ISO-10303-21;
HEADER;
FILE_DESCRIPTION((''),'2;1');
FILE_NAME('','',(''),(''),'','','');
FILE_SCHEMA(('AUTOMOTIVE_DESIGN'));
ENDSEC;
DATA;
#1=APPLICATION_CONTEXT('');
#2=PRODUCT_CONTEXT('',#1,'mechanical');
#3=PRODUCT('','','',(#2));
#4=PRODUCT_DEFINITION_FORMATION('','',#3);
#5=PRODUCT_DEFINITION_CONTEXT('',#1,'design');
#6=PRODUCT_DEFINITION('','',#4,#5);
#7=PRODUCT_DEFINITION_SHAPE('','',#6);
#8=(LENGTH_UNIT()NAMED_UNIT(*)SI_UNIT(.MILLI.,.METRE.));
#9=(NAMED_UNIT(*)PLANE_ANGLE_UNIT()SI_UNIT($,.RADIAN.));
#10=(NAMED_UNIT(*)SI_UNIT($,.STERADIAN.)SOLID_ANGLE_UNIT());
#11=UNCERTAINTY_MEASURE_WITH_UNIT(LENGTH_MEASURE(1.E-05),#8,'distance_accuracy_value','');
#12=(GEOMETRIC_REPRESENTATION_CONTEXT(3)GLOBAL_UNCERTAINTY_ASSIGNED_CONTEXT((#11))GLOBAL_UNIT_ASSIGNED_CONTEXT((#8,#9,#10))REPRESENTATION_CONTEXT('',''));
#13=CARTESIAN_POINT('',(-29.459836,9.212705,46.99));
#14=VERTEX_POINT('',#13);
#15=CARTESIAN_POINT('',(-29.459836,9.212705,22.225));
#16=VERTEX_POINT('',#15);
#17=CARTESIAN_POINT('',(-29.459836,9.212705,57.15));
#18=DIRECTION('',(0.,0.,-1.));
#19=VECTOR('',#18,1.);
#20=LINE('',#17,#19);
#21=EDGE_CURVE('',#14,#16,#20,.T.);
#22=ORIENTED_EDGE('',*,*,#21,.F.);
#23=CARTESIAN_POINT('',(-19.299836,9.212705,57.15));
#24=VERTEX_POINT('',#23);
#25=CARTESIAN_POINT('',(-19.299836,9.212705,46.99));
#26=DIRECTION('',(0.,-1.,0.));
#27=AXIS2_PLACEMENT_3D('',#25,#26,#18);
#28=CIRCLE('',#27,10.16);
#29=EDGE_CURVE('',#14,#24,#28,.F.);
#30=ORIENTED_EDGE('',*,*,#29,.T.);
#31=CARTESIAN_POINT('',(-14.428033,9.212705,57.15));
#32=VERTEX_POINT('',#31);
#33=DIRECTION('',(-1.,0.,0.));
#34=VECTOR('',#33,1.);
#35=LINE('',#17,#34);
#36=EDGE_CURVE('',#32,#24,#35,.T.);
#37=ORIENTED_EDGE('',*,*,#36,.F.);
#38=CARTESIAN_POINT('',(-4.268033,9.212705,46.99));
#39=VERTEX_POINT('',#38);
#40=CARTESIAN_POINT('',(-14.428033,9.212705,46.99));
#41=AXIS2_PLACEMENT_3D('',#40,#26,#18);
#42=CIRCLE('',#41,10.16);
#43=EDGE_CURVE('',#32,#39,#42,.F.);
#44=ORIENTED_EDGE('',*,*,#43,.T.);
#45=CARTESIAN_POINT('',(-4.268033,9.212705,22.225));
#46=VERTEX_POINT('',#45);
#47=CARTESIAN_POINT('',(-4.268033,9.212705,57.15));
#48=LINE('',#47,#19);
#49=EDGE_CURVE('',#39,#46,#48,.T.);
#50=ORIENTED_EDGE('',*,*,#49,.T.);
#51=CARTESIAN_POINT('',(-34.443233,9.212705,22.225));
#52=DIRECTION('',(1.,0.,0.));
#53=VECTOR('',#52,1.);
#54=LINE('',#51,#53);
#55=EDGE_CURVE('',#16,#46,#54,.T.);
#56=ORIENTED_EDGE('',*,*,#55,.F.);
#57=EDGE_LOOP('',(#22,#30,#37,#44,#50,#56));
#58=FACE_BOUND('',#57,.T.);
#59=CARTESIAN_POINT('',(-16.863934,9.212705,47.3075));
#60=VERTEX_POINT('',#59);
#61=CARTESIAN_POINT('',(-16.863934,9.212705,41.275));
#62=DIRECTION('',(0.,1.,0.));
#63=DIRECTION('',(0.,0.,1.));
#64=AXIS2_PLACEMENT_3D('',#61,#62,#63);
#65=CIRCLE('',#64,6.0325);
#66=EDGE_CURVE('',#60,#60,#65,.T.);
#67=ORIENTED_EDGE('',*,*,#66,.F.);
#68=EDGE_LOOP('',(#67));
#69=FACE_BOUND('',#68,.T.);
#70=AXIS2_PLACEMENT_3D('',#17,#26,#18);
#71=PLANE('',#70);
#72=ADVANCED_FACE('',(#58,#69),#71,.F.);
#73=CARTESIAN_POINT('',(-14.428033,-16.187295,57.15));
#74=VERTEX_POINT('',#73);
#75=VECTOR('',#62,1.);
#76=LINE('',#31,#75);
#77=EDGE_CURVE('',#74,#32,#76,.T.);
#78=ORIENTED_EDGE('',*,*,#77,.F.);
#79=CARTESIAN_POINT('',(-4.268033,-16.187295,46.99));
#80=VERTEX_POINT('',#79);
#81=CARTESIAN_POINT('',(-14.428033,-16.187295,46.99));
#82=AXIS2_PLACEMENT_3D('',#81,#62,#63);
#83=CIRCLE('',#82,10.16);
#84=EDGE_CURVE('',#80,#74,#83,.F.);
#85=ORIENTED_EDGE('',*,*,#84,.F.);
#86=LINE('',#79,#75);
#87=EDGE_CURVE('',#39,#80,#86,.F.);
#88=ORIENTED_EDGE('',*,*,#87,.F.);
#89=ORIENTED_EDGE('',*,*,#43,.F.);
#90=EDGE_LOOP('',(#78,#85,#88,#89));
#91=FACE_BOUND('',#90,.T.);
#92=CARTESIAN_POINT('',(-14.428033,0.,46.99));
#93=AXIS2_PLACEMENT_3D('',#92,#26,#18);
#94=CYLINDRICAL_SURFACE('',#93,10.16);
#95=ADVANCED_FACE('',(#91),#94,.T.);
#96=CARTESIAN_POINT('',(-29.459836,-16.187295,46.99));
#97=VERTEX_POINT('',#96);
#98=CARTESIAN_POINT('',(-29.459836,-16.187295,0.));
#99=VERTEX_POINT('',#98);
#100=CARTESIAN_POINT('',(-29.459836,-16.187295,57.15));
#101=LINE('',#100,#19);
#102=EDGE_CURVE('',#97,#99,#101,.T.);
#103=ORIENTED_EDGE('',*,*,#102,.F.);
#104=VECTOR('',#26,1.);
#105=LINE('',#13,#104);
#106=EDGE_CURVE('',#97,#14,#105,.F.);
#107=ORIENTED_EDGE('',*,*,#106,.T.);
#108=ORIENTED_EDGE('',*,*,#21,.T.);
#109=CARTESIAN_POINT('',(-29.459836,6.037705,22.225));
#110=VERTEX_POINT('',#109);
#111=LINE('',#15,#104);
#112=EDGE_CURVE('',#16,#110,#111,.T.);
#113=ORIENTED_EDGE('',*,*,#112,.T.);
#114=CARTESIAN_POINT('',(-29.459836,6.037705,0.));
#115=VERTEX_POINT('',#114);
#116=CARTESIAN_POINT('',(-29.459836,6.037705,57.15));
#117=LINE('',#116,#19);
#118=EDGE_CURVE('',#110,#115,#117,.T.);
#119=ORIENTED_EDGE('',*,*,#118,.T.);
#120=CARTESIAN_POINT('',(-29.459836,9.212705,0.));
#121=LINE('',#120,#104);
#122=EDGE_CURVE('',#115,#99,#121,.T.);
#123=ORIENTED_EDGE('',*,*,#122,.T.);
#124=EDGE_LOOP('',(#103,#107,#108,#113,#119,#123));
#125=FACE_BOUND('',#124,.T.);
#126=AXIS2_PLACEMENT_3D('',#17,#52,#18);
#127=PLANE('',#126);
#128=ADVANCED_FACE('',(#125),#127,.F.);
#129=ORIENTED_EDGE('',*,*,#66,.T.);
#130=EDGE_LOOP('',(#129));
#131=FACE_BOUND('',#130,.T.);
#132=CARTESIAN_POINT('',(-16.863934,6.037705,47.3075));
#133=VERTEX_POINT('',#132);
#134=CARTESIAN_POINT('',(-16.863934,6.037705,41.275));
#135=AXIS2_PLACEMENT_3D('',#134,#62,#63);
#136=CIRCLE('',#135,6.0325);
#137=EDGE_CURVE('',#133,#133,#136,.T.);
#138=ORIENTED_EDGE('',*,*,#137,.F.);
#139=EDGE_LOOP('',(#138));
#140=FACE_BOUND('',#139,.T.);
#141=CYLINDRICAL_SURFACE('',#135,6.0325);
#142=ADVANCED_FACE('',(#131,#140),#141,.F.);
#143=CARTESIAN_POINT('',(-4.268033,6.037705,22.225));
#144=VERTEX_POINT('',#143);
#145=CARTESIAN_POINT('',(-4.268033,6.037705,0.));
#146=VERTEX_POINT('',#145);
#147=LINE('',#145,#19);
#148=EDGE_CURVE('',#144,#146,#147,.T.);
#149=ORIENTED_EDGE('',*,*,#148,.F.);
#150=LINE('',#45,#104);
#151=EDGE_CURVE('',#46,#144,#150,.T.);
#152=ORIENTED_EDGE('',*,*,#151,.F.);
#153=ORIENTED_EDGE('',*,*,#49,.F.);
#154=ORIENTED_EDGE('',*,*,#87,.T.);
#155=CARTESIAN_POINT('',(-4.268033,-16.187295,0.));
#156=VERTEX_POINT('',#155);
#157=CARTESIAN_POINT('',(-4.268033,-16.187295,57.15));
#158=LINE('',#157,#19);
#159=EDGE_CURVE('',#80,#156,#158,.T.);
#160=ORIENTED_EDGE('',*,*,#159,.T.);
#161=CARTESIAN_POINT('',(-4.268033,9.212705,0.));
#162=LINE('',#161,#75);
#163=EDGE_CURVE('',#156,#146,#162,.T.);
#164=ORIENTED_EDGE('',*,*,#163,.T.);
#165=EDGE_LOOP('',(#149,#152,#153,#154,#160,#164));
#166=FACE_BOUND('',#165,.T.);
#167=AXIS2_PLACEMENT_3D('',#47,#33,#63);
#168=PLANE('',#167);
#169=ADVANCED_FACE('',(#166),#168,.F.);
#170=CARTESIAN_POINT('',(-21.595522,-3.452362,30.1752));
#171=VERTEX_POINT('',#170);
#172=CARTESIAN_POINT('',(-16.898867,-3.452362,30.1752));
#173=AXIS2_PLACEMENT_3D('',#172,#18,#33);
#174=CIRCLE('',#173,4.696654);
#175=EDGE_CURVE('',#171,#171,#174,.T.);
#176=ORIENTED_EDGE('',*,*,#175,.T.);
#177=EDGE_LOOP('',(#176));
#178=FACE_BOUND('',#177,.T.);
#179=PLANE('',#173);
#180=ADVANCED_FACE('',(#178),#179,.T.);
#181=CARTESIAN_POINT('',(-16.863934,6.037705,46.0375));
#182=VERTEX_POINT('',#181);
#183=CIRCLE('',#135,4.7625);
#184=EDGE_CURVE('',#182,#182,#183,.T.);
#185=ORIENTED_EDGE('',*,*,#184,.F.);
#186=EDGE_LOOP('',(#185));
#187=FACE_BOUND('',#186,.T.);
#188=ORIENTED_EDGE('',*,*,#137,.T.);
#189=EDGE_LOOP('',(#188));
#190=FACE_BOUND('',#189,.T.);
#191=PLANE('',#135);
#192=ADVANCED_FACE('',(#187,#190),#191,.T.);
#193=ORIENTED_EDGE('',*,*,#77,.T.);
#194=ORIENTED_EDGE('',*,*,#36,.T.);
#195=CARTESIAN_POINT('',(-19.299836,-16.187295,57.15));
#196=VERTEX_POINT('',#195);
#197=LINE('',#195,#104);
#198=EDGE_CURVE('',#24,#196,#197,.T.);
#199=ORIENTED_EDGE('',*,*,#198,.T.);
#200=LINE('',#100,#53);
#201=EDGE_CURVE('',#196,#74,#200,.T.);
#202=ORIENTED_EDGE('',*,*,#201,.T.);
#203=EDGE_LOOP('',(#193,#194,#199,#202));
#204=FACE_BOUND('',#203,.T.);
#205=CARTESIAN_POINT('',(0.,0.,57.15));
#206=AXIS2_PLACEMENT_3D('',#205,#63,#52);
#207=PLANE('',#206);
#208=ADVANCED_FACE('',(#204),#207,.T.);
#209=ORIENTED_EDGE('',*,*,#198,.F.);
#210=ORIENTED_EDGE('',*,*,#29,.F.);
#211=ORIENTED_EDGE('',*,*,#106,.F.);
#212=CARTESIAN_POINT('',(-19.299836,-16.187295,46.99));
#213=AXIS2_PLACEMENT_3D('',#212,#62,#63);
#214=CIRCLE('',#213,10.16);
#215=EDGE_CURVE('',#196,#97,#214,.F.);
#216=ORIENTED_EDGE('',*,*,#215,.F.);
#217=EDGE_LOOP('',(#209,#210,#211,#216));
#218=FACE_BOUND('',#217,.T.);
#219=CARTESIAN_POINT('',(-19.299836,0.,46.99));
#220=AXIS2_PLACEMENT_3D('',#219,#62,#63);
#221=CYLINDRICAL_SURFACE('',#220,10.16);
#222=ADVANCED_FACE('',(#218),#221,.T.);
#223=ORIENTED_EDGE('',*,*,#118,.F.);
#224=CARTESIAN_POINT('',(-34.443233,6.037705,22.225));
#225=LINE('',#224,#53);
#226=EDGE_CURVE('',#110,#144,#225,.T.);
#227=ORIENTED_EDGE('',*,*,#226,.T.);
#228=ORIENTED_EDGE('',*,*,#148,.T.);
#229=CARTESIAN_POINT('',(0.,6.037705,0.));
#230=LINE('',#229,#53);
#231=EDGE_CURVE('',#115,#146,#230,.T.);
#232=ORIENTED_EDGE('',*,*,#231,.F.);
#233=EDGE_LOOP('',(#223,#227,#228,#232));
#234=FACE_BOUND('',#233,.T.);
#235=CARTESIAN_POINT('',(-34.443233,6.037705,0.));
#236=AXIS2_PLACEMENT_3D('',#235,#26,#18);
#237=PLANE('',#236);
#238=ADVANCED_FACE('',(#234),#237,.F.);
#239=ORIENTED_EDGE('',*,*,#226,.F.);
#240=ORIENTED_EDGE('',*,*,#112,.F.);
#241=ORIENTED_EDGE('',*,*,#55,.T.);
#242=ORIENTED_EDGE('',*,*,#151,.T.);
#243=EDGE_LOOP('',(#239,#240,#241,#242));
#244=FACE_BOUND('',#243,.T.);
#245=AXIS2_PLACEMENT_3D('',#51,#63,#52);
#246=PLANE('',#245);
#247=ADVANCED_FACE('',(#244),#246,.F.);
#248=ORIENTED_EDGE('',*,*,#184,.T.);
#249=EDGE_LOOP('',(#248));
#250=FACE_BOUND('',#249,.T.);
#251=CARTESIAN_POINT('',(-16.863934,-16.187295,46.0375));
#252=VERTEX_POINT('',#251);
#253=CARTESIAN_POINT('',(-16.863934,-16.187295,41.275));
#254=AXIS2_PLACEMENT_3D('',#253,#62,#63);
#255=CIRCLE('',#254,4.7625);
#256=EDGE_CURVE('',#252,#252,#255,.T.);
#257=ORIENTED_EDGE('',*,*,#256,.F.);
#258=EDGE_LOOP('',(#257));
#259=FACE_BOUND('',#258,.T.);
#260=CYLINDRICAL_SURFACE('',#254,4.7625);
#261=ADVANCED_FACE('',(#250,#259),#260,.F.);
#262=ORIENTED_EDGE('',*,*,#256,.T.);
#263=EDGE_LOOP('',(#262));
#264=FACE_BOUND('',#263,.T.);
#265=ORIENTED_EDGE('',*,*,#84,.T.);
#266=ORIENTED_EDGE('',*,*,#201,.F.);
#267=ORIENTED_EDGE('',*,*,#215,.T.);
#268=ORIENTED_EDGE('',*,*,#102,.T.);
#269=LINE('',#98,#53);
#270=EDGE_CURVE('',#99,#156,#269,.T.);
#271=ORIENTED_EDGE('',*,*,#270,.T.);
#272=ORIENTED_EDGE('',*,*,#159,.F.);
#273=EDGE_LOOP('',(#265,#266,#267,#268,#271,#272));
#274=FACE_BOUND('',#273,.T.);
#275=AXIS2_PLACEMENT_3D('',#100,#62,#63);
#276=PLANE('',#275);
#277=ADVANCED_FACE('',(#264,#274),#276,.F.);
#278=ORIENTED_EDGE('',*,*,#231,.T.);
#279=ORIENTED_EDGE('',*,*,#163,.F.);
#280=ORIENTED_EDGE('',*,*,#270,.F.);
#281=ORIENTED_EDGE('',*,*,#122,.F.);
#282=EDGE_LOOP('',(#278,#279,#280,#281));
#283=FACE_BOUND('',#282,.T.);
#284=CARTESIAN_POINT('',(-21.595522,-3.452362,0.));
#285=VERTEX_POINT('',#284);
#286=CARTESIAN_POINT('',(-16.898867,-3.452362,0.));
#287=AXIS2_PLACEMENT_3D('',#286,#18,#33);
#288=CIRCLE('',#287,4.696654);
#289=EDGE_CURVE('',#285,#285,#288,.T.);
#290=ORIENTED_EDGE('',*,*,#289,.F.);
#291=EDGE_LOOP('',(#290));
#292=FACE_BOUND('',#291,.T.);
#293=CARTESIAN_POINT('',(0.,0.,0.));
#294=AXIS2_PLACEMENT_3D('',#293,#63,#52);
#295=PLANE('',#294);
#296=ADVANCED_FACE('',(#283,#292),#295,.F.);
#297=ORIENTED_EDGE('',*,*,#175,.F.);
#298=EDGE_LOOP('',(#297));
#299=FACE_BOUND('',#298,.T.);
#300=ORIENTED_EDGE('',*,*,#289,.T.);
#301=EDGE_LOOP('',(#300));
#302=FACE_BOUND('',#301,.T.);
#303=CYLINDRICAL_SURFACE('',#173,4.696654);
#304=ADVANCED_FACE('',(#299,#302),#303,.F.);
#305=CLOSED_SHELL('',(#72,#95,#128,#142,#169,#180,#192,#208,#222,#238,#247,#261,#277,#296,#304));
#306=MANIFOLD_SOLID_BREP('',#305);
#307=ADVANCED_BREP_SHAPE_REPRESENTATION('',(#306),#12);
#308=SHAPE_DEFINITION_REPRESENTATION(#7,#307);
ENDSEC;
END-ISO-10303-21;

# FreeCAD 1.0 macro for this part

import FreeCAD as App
import Part
import Sketcher
Q = App.Units.Quantity


def edges_at(feature, points):
    """Names of the edges that pass closest to the given points."""
    edges = feature.Shape.Edges
    near = lambda p: min(range(len(edges)), key=lambda i: edges[i].distToShape(Part.Vertex(*p))[0])
    return sorted({f"Edge{near(p) + 1}" for p in points})

doc = App.newDocument("Part")
body = doc.addObject("PartDesign::Body", "Body")

sketch1 = doc.addObject("Sketcher::SketchObject", "Sketch")
body.addObject(sketch1)
sketch1.AttachmentSupport = (doc.XY_Plane, [""])
sketch1.MapMode = "FlatFace"
sketch1.addGeometry([
    Part.LineSegment(App.Vector(-29.459836, 9.212705, 0), App.Vector(-29.459836, -16.187295, 0)),
    Part.LineSegment(App.Vector(-29.459836, -16.187295, 0), App.Vector(-4.268033, -16.187295, 0)),
    Part.LineSegment(App.Vector(-4.268033, -16.187295, 0), App.Vector(-4.268033, 9.212705, 0)),
    Part.LineSegment(App.Vector(-4.268033, 9.212705, 0), App.Vector(-29.459836, 9.212705, 0)),
], False)
sketch1.addConstraint([
    Sketcher.Constraint("Coincident", 0, 2, 1, 1),
    Sketcher.Constraint("Coincident", 1, 2, 2, 1),
    Sketcher.Constraint("Coincident", 2, 2, 3, 1),
    Sketcher.Constraint("Coincident", 3, 2, 0, 1),
    Sketcher.Constraint("Vertical", 0),
    Sketcher.Constraint("Horizontal", 1),
    Sketcher.Constraint("Vertical", 2),
    Sketcher.Constraint("Horizontal", 3),
    Sketcher.Constraint("DistanceY", 0, 2, 0, 1, Q("1 in")),
    Sketcher.Constraint("DistanceX", 1, 1, 1, 2, Q("25.191803 mm")),
    Sketcher.Constraint("DistanceX", 0, 2, -1, 1, Q("29.459836 mm")),
    Sketcher.Constraint("DistanceY", 0, 2, -1, 1, Q("16.187295 mm")),
])
pad1 = doc.addObject("PartDesign::Pad", "Pad")
body.addObject(pad1)
pad1.Profile = sketch1
pad1.Length = Q("2.25 in")

sketch2 = doc.addObject("Sketcher::SketchObject", "Sketch001")
body.addObject(sketch2)
sketch2.AttachmentSupport = (doc.XY_Plane, [""])
sketch2.MapMode = "FlatFace"
sketch2.addGeometry(Part.Circle(App.Vector(-16.898867, -3.452362, 0), App.Vector(0, 0, 1), 4.696654), False)
sketch2.addConstraint([
    Sketcher.Constraint("Diameter", 0, Q("9.393309 mm")),
    Sketcher.Constraint("DistanceX", 0, 3, -1, 1, Q("16.898867 mm")),
    Sketcher.Constraint("DistanceY", 0, 3, -1, 1, Q("3.452362 mm")),
])
pocket1 = doc.addObject("PartDesign::Pocket", "Pocket")
body.addObject(pocket1)
pocket1.Profile = sketch2
pocket1.Length = Q("1.188 in")
pocket1.Reversed = True

sketch3 = doc.addObject("Sketcher::SketchObject", "Sketch002")
body.addObject(sketch3)
sketch3.AttachmentSupport = (doc.YZ_Plane, [""])
sketch3.MapMode = "FlatFace"
sketch3.AttachmentOffset = App.Placement(App.Vector(0, 0, -4.268033), App.Rotation())
sketch3.addGeometry([
    Part.LineSegment(App.Vector(9.212705, 22.225, 0), App.Vector(6.037705, 22.225, 0)),
    Part.LineSegment(App.Vector(6.037705, 22.225, 0), App.Vector(6.037705, 0, 0)),
    Part.LineSegment(App.Vector(6.037705, 0, 0), App.Vector(9.212705, 0, 0)),
    Part.LineSegment(App.Vector(9.212705, 0, 0), App.Vector(9.212705, 22.225, 0)),
], False)
sketch3.addConstraint([
    Sketcher.Constraint("Coincident", 0, 2, 1, 1),
    Sketcher.Constraint("Coincident", 1, 2, 2, 1),
    Sketcher.Constraint("Coincident", 2, 2, 3, 1),
    Sketcher.Constraint("Coincident", 3, 2, 0, 1),
    Sketcher.Constraint("Horizontal", 0),
    Sketcher.Constraint("Vertical", 1),
    Sketcher.Constraint("Horizontal", 2),
    Sketcher.Constraint("Vertical", 3),
    Sketcher.Constraint("PointOnObject", 1, 2, -1),
    Sketcher.Constraint("DistanceX", 0, 2, 0, 1, Q("0.125 in")),
    Sketcher.Constraint("DistanceY", 1, 2, 1, 1, Q("0.875 in")),
    Sketcher.Constraint("DistanceX", -1, 1, 0, 2, Q("6.037705 mm")),
])
pocket2 = doc.addObject("PartDesign::Pocket", "Pocket001")
body.addObject(pocket2)
pocket2.Profile = sketch3
pocket2.Length = Q("1.188 in")

sketch4 = doc.addObject("Sketcher::SketchObject", "Sketch003")
body.addObject(sketch4)
sketch4.AttachmentSupport = (doc.XZ_Plane, [""])
sketch4.MapMode = "FlatFace"
sketch4.AttachmentOffset = App.Placement(App.Vector(0, 0, -9.212705), App.Rotation())
sketch4.addGeometry(Part.Circle(App.Vector(-16.863934, 41.275, 0), App.Vector(0, 0, 1), 6.0325), False)
sketch4.addConstraint([
    Sketcher.Constraint("Diameter", 0, Q("0.475 in")),
    Sketcher.Constraint("DistanceY", -1, 1, 0, 3, Q("1.625 in")),
    Sketcher.Constraint("DistanceX", 0, 3, -1, 1, Q("16.863934 mm")),
])
pocket3 = doc.addObject("PartDesign::Pocket", "Pocket002")
body.addObject(pocket3)
pocket3.Profile = sketch4
pocket3.Length = Q("0.125 in")
pocket3.Reversed = True

sketch5 = doc.addObject("Sketcher::SketchObject", "Sketch004")
body.addObject(sketch5)
sketch5.AttachmentSupport = (doc.XZ_Plane, [""])
sketch5.MapMode = "FlatFace"
sketch5.AttachmentOffset = App.Placement(App.Vector(0, 0, -6.037705), App.Rotation())
sketch5.addGeometry(Part.Circle(App.Vector(-16.863934, 41.275, 0), App.Vector(0, 0, 1), 4.7625), False)
sketch5.addConstraint([
    Sketcher.Constraint("Diameter", 0, Q("0.375 in")),
    Sketcher.Constraint("DistanceY", -1, 1, 0, 3, Q("1.625 in")),
    Sketcher.Constraint("DistanceX", 0, 3, -1, 1, Q("16.863934 mm")),
])
pocket4 = doc.addObject("PartDesign::Pocket", "Pocket003")
body.addObject(pocket4)
pocket4.Profile = sketch5
pocket4.Type = "ThroughAll"
pocket4.Reversed = True
doc.recompute()

fillet = doc.addObject("PartDesign::Fillet", "Fillet")
body.addObject(fillet)
fillet.Base = (pocket4, edges_at(pocket4, [(-4.268, -3.487, 57.15)]))
fillet.Radius = Q("0.4 in")
doc.recompute()

fillet2 = doc.addObject("PartDesign::Fillet", "Fillet001")
body.addObject(fillet2)
fillet2.Base = (fillet, edges_at(fillet, [(-29.46, -3.487, 57.15)]))
fillet2.Radius = Q("0.4 in")

doc.recompute()
